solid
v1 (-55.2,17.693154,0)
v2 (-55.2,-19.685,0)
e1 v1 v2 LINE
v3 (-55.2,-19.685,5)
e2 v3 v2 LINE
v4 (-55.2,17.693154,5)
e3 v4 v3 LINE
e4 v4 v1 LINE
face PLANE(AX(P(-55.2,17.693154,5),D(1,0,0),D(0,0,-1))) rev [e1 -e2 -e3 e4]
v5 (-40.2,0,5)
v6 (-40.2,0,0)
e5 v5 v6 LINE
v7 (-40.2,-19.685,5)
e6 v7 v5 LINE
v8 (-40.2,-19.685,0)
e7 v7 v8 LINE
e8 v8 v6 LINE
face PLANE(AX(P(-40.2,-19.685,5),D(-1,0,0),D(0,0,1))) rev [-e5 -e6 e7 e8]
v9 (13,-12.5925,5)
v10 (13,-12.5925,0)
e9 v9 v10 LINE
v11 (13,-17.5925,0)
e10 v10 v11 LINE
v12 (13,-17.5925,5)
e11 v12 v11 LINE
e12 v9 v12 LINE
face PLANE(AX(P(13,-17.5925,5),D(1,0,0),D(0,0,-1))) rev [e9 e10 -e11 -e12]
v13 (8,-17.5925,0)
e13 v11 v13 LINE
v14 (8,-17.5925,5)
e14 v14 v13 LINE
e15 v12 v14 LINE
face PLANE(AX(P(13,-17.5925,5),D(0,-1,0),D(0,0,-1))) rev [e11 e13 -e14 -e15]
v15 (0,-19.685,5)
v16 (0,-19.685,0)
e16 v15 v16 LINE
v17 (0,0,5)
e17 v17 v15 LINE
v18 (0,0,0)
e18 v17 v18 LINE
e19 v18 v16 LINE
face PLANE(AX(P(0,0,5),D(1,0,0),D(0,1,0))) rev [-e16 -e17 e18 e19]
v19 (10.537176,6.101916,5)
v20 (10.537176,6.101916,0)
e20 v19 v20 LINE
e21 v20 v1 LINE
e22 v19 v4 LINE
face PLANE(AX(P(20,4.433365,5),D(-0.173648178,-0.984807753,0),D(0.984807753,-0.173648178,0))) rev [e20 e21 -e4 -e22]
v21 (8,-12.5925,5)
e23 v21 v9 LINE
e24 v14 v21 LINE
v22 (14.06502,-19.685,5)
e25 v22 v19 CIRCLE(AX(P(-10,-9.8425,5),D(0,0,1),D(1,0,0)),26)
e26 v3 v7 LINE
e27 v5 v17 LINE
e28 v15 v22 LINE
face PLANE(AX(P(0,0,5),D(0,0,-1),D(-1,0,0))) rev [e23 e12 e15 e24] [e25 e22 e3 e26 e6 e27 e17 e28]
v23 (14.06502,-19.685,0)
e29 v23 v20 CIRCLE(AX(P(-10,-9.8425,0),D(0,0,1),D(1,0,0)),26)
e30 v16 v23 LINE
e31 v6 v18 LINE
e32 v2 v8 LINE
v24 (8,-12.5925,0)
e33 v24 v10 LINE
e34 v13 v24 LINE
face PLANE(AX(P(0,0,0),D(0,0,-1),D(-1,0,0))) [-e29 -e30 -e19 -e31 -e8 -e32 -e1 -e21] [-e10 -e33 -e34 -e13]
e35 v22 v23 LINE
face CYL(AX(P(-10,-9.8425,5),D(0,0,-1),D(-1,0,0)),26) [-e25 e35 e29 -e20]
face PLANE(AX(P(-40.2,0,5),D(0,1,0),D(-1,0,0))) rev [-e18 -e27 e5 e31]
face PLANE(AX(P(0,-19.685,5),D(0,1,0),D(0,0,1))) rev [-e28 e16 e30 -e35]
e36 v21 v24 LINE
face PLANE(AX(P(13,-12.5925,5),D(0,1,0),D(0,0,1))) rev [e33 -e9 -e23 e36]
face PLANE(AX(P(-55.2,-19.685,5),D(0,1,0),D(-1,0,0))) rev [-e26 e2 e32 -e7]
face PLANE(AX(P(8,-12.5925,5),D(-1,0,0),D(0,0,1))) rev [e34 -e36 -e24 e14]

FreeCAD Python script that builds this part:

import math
import FreeCAD as App
import Part
import Sketcher

V = App.Vector
Q = App.Units.Quantity


def add_polygon(sketch, points):
    """Adds a closed chain of lines whose ends are joined by coincident constraints."""
    first, n = sketch.GeometryCount, len(points)
    for a, b in zip(points, points[1:] + points[:1]):
        sketch.addGeometry(Part.LineSegment(App.Vector(*a, 0), App.Vector(*b, 0)), False)
    for i in range(n):
        sketch.addConstraint(Sketcher.Constraint("Coincident", first + i, 2, first + (i + 1) % n, 1))

doc = App.newDocument("Part")
body = doc.addObject("PartDesign::Body", "Body")

sketch1 = body.newObject("Sketcher::SketchObject", "Sketch")
sketch1.AttachmentSupport = (doc.getObject("XY_Plane"), [""])
sketch1.MapMode = "FlatFace"
add_polygon(sketch1, [(0, 0), (0, -20), (20, -20), (20, 4), (-55, 18), (-55, -20), (-40, -20), (-40, 0)])
sketch1.addConstraint([
    Sketcher.Constraint("Vertical", 0),
    Sketcher.Constraint("Horizontal", 1),
    Sketcher.Constraint("Vertical", 2),
    Sketcher.Constraint("Vertical", 4),
    Sketcher.Constraint("Horizontal", 5),
    Sketcher.Constraint("Vertical", 6),
    Sketcher.Constraint("Horizontal", 7),
    Sketcher.Constraint("Coincident", 7, 2, -1, 1),
    Sketcher.Constraint("Horizontal", 1, 2, 4, 2),
    Sketcher.Constraint("DistanceX", 1, 1, 1, 2, 20.0),
    Sketcher.Constraint("DistanceX", 5, 1, 5, 2, 15.0),
    Sketcher.Constraint("Angle", 3, Q("170 deg")),
    Sketcher.Constraint("DistanceX", 7, 1, 7, 2, 40.2),
    Sketcher.Constraint("DistanceY", 0, 2, 0, 1, 19.685),
    Sketcher.Constraint("DistanceY", 2, 1, 2, 2, 24.118365),
])
pad1 = body.newObject("PartDesign::Pad", "Pad")
pad1.Profile = sketch1
pad1.Length = 5

sketch2 = body.newObject("Sketcher::SketchObject", "Sketch001")
sketch2.AttachmentSupport = (doc.getObject("XY_Plane"), [""])
sketch2.MapMode = "FlatFace"
sketch2.addGeometry(Part.LineSegment(V(10.5, 6.1, 0), V(11.2, 10, 0)), False)
sketch2.addGeometry(Part.LineSegment(V(11.2, 10, 0), V(30.7, 6.6, 0)), False)
sketch2.addGeometry(Part.LineSegment(V(30.7, 6.6, 0), V(25.7, -21.7, 0)), False)
sketch2.addGeometry(Part.LineSegment(V(25.7, -21.7, 0), V(14.1, -19.7, 0)), False)
sketch2.addGeometry(Part.ArcOfCircle(Part.Circle(V(-10, -9.8, 0), V(0, 0, 1), 26), math.radians(-22), math.radians(38)), False)
add_polygon(sketch2, [(13, -12.6), (13, -17.6), (8, -17.6), (8, -12.6)])
sketch2.addConstraint([
    Sketcher.Constraint("Coincident", 0, 2, 1, 1),
    Sketcher.Constraint("Coincident", 1, 2, 2, 1),
    Sketcher.Constraint("Coincident", 2, 2, 3, 1),
    Sketcher.Constraint("Coincident", 3, 2, 4, 1),
    Sketcher.Constraint("Coincident", 4, 2, 0, 1),
    Sketcher.Constraint("Vertical", 5),
    Sketcher.Constraint("Horizontal", 6),
    Sketcher.Constraint("Vertical", 7),
    Sketcher.Constraint("Horizontal", 8),
    Sketcher.Constraint("Perpendicular", 0, 1),
    Sketcher.Constraint("Perpendicular", 1, 2),
    Sketcher.Constraint("Perpendicular", 2, 3),
    Sketcher.Constraint("Equal", 8, 5),
    Sketcher.Constraint("Radius", 4, 26.0),
    Sketcher.Constraint("DistanceX", 6, 2, 6, 1, 5.0),
    Sketcher.Constraint("Angle", 0, Q("80 deg")),
    Sketcher.Constraint("DistanceX", 4, 3, -1, 1, 10.0),
    Sketcher.Constraint("DistanceX", -1, 1, 5, 2, 13.0),
    Sketcher.Constraint("DistanceY", 5, 2, 4, 3, 7.75),
    Sketcher.Constraint("DistanceY", 3, 2, -1, 1, 19.685),
    Sketcher.Constraint("DistanceY", 4, 3, -1, 1, 9.8425),
    Sketcher.Constraint("Distance", 1, 19.79989),
    Sketcher.Constraint("Distance", 3, 11.84779),
    Sketcher.Constraint("DistanceX", -1, 1, 0, 2, 11.23315),
])
pocket1 = body.newObject("PartDesign::Pocket", "Pocket")
pocket1.Profile = sketch2
pocket1.Length = 5
pocket1.Reversed = True

doc.recompute()
